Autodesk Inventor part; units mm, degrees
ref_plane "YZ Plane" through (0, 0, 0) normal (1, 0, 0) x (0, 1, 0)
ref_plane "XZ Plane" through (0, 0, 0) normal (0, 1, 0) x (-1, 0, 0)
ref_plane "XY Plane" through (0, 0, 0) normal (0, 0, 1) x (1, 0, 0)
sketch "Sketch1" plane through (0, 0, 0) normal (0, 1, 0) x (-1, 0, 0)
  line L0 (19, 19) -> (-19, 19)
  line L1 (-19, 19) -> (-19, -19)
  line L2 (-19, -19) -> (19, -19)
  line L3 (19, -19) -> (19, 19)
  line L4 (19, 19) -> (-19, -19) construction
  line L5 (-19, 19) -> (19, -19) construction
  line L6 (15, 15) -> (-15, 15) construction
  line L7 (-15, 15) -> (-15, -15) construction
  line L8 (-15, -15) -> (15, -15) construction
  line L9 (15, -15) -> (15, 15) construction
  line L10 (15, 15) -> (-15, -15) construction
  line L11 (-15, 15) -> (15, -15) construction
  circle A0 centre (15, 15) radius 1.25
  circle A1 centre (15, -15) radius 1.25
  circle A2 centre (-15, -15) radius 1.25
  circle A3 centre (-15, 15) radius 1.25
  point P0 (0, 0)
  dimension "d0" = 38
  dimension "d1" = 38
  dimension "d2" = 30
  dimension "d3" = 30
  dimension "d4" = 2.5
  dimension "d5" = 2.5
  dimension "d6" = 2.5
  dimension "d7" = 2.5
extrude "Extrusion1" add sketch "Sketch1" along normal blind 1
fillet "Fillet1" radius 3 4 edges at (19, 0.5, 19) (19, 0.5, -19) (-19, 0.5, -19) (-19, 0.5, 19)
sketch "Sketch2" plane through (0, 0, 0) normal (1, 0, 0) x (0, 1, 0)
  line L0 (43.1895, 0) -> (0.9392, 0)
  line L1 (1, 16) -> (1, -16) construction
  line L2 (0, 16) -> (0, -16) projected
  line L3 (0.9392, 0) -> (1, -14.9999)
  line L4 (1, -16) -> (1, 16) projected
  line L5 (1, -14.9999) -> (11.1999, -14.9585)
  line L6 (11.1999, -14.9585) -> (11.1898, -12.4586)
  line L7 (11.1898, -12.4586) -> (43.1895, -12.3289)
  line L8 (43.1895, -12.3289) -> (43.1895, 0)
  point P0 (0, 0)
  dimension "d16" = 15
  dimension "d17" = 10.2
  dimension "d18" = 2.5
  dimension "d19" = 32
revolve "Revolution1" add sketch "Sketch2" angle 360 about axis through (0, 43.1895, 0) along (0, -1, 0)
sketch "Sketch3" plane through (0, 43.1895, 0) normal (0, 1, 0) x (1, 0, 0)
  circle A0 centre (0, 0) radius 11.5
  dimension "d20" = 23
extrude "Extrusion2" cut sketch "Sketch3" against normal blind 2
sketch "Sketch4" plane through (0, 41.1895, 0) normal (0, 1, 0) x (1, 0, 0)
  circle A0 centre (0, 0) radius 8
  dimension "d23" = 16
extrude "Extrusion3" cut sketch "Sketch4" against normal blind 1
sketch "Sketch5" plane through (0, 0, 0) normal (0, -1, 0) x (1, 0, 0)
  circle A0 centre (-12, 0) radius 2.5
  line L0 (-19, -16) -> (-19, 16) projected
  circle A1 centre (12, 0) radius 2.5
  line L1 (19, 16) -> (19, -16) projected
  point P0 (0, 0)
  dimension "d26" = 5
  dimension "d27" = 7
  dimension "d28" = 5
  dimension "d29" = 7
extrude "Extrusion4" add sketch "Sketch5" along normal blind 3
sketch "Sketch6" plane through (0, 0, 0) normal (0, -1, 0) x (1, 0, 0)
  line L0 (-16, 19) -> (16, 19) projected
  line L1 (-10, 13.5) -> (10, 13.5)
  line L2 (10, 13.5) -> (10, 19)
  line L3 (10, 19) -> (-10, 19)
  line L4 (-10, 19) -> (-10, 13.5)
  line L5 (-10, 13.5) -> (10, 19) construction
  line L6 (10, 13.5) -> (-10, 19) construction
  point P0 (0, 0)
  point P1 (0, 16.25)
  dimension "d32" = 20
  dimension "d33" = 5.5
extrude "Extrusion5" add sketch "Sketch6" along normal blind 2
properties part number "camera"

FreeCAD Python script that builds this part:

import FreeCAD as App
import Part
import Sketcher
Q = App.Units.Quantity


def edges_at(feature, points):
    """Names of the edges that pass closest to the given points."""
    edges = feature.Shape.Edges
    near = lambda p: min(range(len(edges)), key=lambda i: edges[i].distToShape(Part.Vertex(*p))[0])
    return sorted({f"Edge{near(p) + 1}" for p in points})

doc = App.newDocument("Part")
params = doc.addObject("Spreadsheet::Sheet", "Params")
for row, (alias, value) in enumerate([
    ("sketch1_diameter", "2.5 mm"),
    ("sketch1_width", "38 mm"),
    ("pad1_length", "1 mm"),
    ("fillet_radius", "3 mm"),
    ("sketch2_length", "15 mm"),
    ("sketch2_length2", "32 mm"),
    ("sketch2_length3", "10.2 mm"),
    ("sketch2_length4", "2.5 mm"),
    ("revolution_angle", "360 deg"),
    ("sketch3_diameter", "23 mm"),
    ("pocket1_length", "2 mm"),
    ("sketch4_diameter", "16 mm"),
    ("pocket2_length", "1 mm"),
    ("sketch5_diameter", "5 mm"),
    ("pad2_length", "3 mm"),
    ("sketch6_width", "20 mm"),
    ("sketch6_height", "5.5 mm"),
    ("pad3_length", "2 mm"),
], start=1):
    params.set(f"A{row}", alias)
    params.set(f"B{row}", "=" + value)
    params.setAlias(f"B{row}", alias)

body = doc.addObject("PartDesign::Body", "Body")

# Sketch on XZ plane
sketch1 = body.newObject("Sketcher::SketchObject", "Sketch")
sketch1.AttachmentSupport = (doc.getObject("XZ_Plane"), [""])
sketch1.MapMode = "FlatFace"
sketch1.addGeometry(Part.LineSegment(App.Vector(-19, -19, 0), App.Vector(-19, 19, 0)), False)
sketch1.addGeometry(Part.LineSegment(App.Vector(-19, 19, 0), App.Vector(19, 19, 0)), False)
sketch1.addGeometry(Part.LineSegment(App.Vector(19, 19, 0), App.Vector(19, -19, 0)), False)
sketch1.addGeometry(Part.LineSegment(App.Vector(19, -19, 0), App.Vector(-19, -19, 0)), False)
sketch1.addGeometry(Part.Circle(App.Vector(15, -15, 0), App.Vector(0, 0, 1), 1.2), False)
sketch1.addGeometry(Part.Circle(App.Vector(-15, -15, 0), App.Vector(0, 0, 1), 1.2), False)
sketch1.addGeometry(Part.Circle(App.Vector(15, 15, 0), App.Vector(0, 0, 1), 1.2), False)
sketch1.addGeometry(Part.Circle(App.Vector(-15, 15, 0), App.Vector(0, 0, 1), 1.2), False)
sketch1.addConstraint(Sketcher.Constraint("Coincident", 0, 2, 1, 1))
sketch1.addConstraint(Sketcher.Constraint("Coincident", 1, 2, 2, 1))
sketch1.addConstraint(Sketcher.Constraint("Coincident", 2, 2, 3, 1))
sketch1.addConstraint(Sketcher.Constraint("Coincident", 3, 2, 0, 1))
sketch1.addConstraint(Sketcher.Constraint("Vertical", 0))
sketch1.addConstraint(Sketcher.Constraint("Horizontal", 1))
sketch1.addConstraint(Sketcher.Constraint("Vertical", 2))
sketch1.addConstraint(Sketcher.Constraint("Horizontal", 3))
sketch1.addConstraint(Sketcher.Constraint("Equal", 4, 5))
sketch1.addConstraint(Sketcher.Constraint("Equal", 5, 6))
sketch1.addConstraint(Sketcher.Constraint("Equal", 6, 7))
sketch1.addConstraint(Sketcher.Constraint("Symmetric", 5, 3, 6, 3, -1, 1))
sketch1.addConstraint(Sketcher.Constraint("Symmetric", 4, 3, 7, 3, -1, 1))
sketch1.addConstraint(Sketcher.Constraint("Symmetric", 0, 2, 2, 2, -1, 1))
sketch1.addConstraint(Sketcher.Constraint("Symmetric", 4, 3, 5, 3, -2))
sketch1.addConstraint(Sketcher.Constraint("Equal", 3, 0))
sketch1.addConstraint(Sketcher.Constraint("Diameter", 4, Q("2.5 mm")))
sketch1.addConstraint(Sketcher.Constraint("DistanceX", 1, 1, 1, 2, Q("38 mm")))
sketch1.addConstraint(Sketcher.Constraint("DistanceX", 5, 3, 4, 3, Q("30 mm")))
sketch1.addConstraint(Sketcher.Constraint("DistanceY", 4, 3, 6, 3, Q("30 mm")))
sketch1.setExpression("Constraints[16]", "Params.sketch1_diameter")
sketch1.setExpression("Constraints[17]", "Params.sketch1_width")
pad1 = body.newObject("PartDesign::Pad", "Pad")
pad1.Profile = sketch1
pad1.setExpression("Length", "Params.pad1_length")
pad1.Reversed = True
doc.recompute()

fillet = body.newObject("PartDesign::Fillet", "Fillet")
fillet.Base = (pad1, edges_at(pad1, [
    (19, 0.5, 19),
    (19, 0.5, -19),
    (-19, 0.5, -19),
    (-19, 0.5, 19),
]))
fillet.setExpression("Radius", "Params.fillet_radius")

# Sketch on YZ plane
sketch2 = body.newObject("Sketcher::SketchObject", "Sketch001")
sketch2.AttachmentSupport = (doc.getObject("YZ_Plane"), [""])
sketch2.MapMode = "FlatFace"
sketch2.addGeometry(Part.LineSegment(App.Vector(43.2, -12.3, 0), App.Vector(43.2, 0, 0)), False)
sketch2.addGeometry(Part.LineSegment(App.Vector(43.2, 0, 0), App.Vector(0.9, 0, 0)), False)
sketch2.addGeometry(Part.LineSegment(App.Vector(0.9, 0, 0), App.Vector(1, -15, 0)), False)
sketch2.addGeometry(Part.LineSegment(App.Vector(1, -15, 0), App.Vector(11.2, -15, 0)), False)
sketch2.addGeometry(Part.LineSegment(App.Vector(11.2, -15, 0), App.Vector(11.2, -12.5, 0)), False)
sketch2.addGeometry(Part.LineSegment(App.Vector(11.2, -12.5, 0), App.Vector(43.2, -12.3, 0)), False)
sketch2.addConstraint(Sketcher.Constraint("Coincident", 0, 2, 1, 1))
sketch2.addConstraint(Sketcher.Constraint("Coincident", 1, 2, 2, 1))
sketch2.addConstraint(Sketcher.Constraint("Coincident", 2, 2, 3, 1))
sketch2.addConstraint(Sketcher.Constraint("Coincident", 3, 2, 4, 1))
sketch2.addConstraint(Sketcher.Constraint("Coincident", 4, 2, 5, 1))
sketch2.addConstraint(Sketcher.Constraint("Coincident", 5, 2, 0, 1))
sketch2.addConstraint(Sketcher.Constraint("Vertical", 0))
sketch2.addConstraint(Sketcher.Constraint("Horizontal", 1))
sketch2.addConstraint(Sketcher.Constraint("PointOnObject", 0, 2, -1))
sketch2.addConstraint(Sketcher.Constraint("Perpendicular", 2, 3))
sketch2.addConstraint(Sketcher.Constraint("Perpendicular", 3, 4))
sketch2.addConstraint(Sketcher.Constraint("Perpendicular", 4, 5))
sketch2.addConstraint(Sketcher.Constraint("Distance", 2, Q("15 mm")))
sketch2.addConstraint(Sketcher.Constraint("Distance", 5, Q("32 mm")))
sketch2.addConstraint(Sketcher.Constraint("Distance", 3, Q("10.2 mm")))
sketch2.addConstraint(Sketcher.Constraint("Distance", 4, Q("2.5 mm")))
sketch2.addConstraint(Sketcher.Constraint("DistanceX", -1, 1, 2, 2, Q("1 mm")))
sketch2.addConstraint(Sketcher.Constraint("DistanceY", 0, 1, 0, 2, Q("12.329 mm")))
sketch2.setExpression("Constraints[12]", "Params.sketch2_length")
sketch2.setExpression("Constraints[13]", "Params.sketch2_length2")
sketch2.setExpression("Constraints[14]", "Params.sketch2_length3")
sketch2.setExpression("Constraints[15]", "Params.sketch2_length4")
revolution = body.newObject("PartDesign::Revolution", "Revolution")
revolution.Profile = sketch2
revolution.ReferenceAxis = (sketch2, ["H_Axis"])
revolution.setExpression("Angle", "Params.revolution_angle")

# Sketch on XZ plane
sketch3 = body.newObject("Sketcher::SketchObject", "Sketch002")
sketch3.AttachmentSupport = (doc.getObject("XZ_Plane"), [""])
sketch3.MapMode = "FlatFace"
sketch3.AttachmentOffset = App.Placement(App.Vector(0, 0, -43.1895), App.Rotation())
sketch3.addGeometry(Part.Circle(App.Vector(0, 0, 0), App.Vector(0, 0, 1), 12), False)
sketch3.addConstraint(Sketcher.Constraint("Coincident", 0, 3, -1, 1))
sketch3.addConstraint(Sketcher.Constraint("Diameter", 0, Q("23 mm")))
sketch3.setExpression("Constraints[1]", "Params.sketch3_diameter")
pocket1 = body.newObject("PartDesign::Pocket", "Pocket")
pocket1.Profile = sketch3
pocket1.setExpression("Length", "Params.pocket1_length")
pocket1.Reversed = True

# Sketch on XZ plane
sketch4 = body.newObject("Sketcher::SketchObject", "Sketch003")
sketch4.AttachmentSupport = (doc.getObject("XZ_Plane"), [""])
sketch4.MapMode = "FlatFace"
sketch4.AttachmentOffset = App.Placement(App.Vector(0, 0, -41.1895), App.Rotation())
sketch4.addGeometry(Part.Circle(App.Vector(0, 0, 0), App.Vector(0, 0, 1), 8), False)
sketch4.addConstraint(Sketcher.Constraint("Coincident", 0, 3, -1, 1))
sketch4.addConstraint(Sketcher.Constraint("Diameter", 0, Q("16 mm")))
sketch4.setExpression("Constraints[1]", "Params.sketch4_diameter")
pocket2 = body.newObject("PartDesign::Pocket", "Pocket001")
pocket2.Profile = sketch4
pocket2.setExpression("Length", "Params.pocket2_length")
pocket2.Reversed = True

# Sketch on XZ plane
sketch5 = body.newObject("Sketcher::SketchObject", "Sketch004")
sketch5.AttachmentSupport = (doc.getObject("XZ_Plane"), [""])
sketch5.MapMode = "FlatFace"
sketch5.addGeometry(Part.Circle(App.Vector(-12, 0, 0), App.Vector(0, 0, 1), 2.5), False)
sketch5.addGeometry(Part.Circle(App.Vector(12, 0, 0), App.Vector(0, 0, 1), 2.5), False)
sketch5.addConstraint(Sketcher.Constraint("Equal", 0, 1))
sketch5.addConstraint(Sketcher.Constraint("Symmetric", 0, 3, 1, 3, -1, 1))
sketch5.addConstraint(Sketcher.Constraint("PointOnObject", 0, 3, -1))
sketch5.addConstraint(Sketcher.Constraint("Diameter", 0, Q("5 mm")))
sketch5.addConstraint(Sketcher.Constraint("DistanceX", 0, 3, -1, 1, Q("12 mm")))
sketch5.setExpression("Constraints[3]", "Params.sketch5_diameter")
pad2 = body.newObject("PartDesign::Pad", "Pad001")
pad2.Profile = sketch5
pad2.setExpression("Length", "Params.pad2_length")

# Sketch on XZ plane
sketch6 = body.newObject("Sketcher::SketchObject", "Sketch005")
sketch6.AttachmentSupport = (doc.getObject("XZ_Plane"), [""])
sketch6.MapMode = "FlatFace"
sketch6.addGeometry(Part.LineSegment(App.Vector(10, 19, 0), App.Vector(-10, 19, 0)), False)
sketch6.addGeometry(Part.LineSegment(App.Vector(-10, 19, 0), App.Vector(-10, 14, 0)), False)
sketch6.addGeometry(Part.LineSegment(App.Vector(-10, 14, 0), App.Vector(10, 14, 0)), False)
sketch6.addGeometry(Part.LineSegment(App.Vector(10, 14, 0), App.Vector(10, 19, 0)), False)
sketch6.addConstraint(Sketcher.Constraint("Coincident", 0, 2, 1, 1))
sketch6.addConstraint(Sketcher.Constraint("Coincident", 1, 2, 2, 1))
sketch6.addConstraint(Sketcher.Constraint("Coincident", 2, 2, 3, 1))
sketch6.addConstraint(Sketcher.Constraint("Coincident", 3, 2, 0, 1))
sketch6.addConstraint(Sketcher.Constraint("Horizontal", 0))
sketch6.addConstraint(Sketcher.Constraint("Vertical", 1))
sketch6.addConstraint(Sketcher.Constraint("Horizontal", 2))
sketch6.addConstraint(Sketcher.Constraint("Vertical", 3))
sketch6.addConstraint(Sketcher.Constraint("DistanceX", 0, 2, 0, 1, Q("20 mm")))
sketch6.addConstraint(Sketcher.Constraint("DistanceY", 1, 2, 1, 1, Q("5.5 mm")))
sketch6.addConstraint(Sketcher.Constraint("DistanceX", 0, 2, -1, 1, Q("10 mm")))
sketch6.addConstraint(Sketcher.Constraint("DistanceY", -1, 1, 0, 2, Q("19 mm")))
sketch6.setExpression("Constraints[8]", "Params.sketch6_width")
sketch6.setExpression("Constraints[9]", "Params.sketch6_height")
pad3 = body.newObject("PartDesign::Pad", "Pad002")
pad3.Profile = sketch6
pad3.setExpression("Length", "Params.pad3_length")

doc.recompute()
